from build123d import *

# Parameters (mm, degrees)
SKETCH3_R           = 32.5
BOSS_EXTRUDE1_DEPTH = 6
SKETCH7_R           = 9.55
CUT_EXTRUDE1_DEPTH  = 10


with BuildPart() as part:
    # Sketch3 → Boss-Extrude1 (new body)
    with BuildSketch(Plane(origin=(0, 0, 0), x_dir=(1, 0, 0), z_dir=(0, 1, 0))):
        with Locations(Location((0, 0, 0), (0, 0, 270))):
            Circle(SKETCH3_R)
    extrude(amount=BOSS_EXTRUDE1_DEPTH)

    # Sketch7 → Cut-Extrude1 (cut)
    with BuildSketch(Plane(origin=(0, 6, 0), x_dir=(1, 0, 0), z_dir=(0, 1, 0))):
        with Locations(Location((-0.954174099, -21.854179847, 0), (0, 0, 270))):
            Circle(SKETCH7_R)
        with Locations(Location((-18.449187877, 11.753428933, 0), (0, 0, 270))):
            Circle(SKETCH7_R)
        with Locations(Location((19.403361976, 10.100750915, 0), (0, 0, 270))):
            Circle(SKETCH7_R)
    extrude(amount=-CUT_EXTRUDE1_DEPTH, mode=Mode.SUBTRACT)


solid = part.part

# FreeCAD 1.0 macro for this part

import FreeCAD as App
import Part
import Sketcher
Q = App.Units.Quantity

doc = App.newDocument("Part")
body = doc.addObject("PartDesign::Body", "Body")

# Sketch on XZ plane
sketch1 = body.newObject("Sketcher::SketchObject", "Sketch")
sketch1.AttachmentSupport = (doc.getObject("XZ_Plane"), [""])
sketch1.MapMode = "FlatFace"
sketch1.addGeometry(Part.Circle(App.Vector(0, 0, 0), App.Vector(0, 0, 1), 32), False)
sketch1.addConstraint([
    Sketcher.Constraint("Coincident", 0, 3, -1, 1),
    Sketcher.Constraint("Diameter", 0, Q("65 mm")),
])
pad1 = body.newObject("PartDesign::Pad", "Pad")
pad1.Profile = sketch1
pad1.Length = 6
pad1.Reversed = True

# Sketch on XZ plane
sketch2 = body.newObject("Sketcher::SketchObject", "Sketch001")
sketch2.AttachmentSupport = (doc.getObject("XZ_Plane"), [""])
sketch2.MapMode = "FlatFace"
sketch2.AttachmentOffset = App.Placement(App.Vector(0, 0, -6), App.Rotation())
sketch2.addGeometry([
    Part.Circle(App.Vector(-1, 22, 0), App.Vector(0, 0, 1), 10),
    Part.Circle(App.Vector(-18, -12, 0), App.Vector(0, 0, 1), 10),
    Part.Circle(App.Vector(19, -10, 0), App.Vector(0, 0, 1), 10),
], False)
sketch2.addConstraint([
    Sketcher.Constraint("Equal", 0, 1),
    Sketcher.Constraint("Equal", 1, 2),
    Sketcher.Constraint("Diameter", 0, Q("19.1 mm")),
    Sketcher.Constraint("DistanceY", -1, 1, 0, 3, Q("21.85418 mm")),
    Sketcher.Constraint("DistanceY", 1, 3, -1, 1, Q("11.753429 mm")),
    Sketcher.Constraint("DistanceX", -1, 1, 2, 3, Q("19.403362 mm")),
    Sketcher.Constraint("DistanceY", 2, 3, -1, 1, Q("10.100751 mm")),
    Sketcher.Constraint("DistanceX", 1, 3, 2, 3, Q("37.85255 mm")),
    Sketcher.Constraint("DistanceX", 0, 3, -1, 1, Q("0.954174 mm")),
])
pocket1 = body.newObject("PartDesign::Pocket", "Pocket")
pocket1.Profile = sketch2
pocket1.Length = 10
pocket1.Reversed = True

doc.recompute()
